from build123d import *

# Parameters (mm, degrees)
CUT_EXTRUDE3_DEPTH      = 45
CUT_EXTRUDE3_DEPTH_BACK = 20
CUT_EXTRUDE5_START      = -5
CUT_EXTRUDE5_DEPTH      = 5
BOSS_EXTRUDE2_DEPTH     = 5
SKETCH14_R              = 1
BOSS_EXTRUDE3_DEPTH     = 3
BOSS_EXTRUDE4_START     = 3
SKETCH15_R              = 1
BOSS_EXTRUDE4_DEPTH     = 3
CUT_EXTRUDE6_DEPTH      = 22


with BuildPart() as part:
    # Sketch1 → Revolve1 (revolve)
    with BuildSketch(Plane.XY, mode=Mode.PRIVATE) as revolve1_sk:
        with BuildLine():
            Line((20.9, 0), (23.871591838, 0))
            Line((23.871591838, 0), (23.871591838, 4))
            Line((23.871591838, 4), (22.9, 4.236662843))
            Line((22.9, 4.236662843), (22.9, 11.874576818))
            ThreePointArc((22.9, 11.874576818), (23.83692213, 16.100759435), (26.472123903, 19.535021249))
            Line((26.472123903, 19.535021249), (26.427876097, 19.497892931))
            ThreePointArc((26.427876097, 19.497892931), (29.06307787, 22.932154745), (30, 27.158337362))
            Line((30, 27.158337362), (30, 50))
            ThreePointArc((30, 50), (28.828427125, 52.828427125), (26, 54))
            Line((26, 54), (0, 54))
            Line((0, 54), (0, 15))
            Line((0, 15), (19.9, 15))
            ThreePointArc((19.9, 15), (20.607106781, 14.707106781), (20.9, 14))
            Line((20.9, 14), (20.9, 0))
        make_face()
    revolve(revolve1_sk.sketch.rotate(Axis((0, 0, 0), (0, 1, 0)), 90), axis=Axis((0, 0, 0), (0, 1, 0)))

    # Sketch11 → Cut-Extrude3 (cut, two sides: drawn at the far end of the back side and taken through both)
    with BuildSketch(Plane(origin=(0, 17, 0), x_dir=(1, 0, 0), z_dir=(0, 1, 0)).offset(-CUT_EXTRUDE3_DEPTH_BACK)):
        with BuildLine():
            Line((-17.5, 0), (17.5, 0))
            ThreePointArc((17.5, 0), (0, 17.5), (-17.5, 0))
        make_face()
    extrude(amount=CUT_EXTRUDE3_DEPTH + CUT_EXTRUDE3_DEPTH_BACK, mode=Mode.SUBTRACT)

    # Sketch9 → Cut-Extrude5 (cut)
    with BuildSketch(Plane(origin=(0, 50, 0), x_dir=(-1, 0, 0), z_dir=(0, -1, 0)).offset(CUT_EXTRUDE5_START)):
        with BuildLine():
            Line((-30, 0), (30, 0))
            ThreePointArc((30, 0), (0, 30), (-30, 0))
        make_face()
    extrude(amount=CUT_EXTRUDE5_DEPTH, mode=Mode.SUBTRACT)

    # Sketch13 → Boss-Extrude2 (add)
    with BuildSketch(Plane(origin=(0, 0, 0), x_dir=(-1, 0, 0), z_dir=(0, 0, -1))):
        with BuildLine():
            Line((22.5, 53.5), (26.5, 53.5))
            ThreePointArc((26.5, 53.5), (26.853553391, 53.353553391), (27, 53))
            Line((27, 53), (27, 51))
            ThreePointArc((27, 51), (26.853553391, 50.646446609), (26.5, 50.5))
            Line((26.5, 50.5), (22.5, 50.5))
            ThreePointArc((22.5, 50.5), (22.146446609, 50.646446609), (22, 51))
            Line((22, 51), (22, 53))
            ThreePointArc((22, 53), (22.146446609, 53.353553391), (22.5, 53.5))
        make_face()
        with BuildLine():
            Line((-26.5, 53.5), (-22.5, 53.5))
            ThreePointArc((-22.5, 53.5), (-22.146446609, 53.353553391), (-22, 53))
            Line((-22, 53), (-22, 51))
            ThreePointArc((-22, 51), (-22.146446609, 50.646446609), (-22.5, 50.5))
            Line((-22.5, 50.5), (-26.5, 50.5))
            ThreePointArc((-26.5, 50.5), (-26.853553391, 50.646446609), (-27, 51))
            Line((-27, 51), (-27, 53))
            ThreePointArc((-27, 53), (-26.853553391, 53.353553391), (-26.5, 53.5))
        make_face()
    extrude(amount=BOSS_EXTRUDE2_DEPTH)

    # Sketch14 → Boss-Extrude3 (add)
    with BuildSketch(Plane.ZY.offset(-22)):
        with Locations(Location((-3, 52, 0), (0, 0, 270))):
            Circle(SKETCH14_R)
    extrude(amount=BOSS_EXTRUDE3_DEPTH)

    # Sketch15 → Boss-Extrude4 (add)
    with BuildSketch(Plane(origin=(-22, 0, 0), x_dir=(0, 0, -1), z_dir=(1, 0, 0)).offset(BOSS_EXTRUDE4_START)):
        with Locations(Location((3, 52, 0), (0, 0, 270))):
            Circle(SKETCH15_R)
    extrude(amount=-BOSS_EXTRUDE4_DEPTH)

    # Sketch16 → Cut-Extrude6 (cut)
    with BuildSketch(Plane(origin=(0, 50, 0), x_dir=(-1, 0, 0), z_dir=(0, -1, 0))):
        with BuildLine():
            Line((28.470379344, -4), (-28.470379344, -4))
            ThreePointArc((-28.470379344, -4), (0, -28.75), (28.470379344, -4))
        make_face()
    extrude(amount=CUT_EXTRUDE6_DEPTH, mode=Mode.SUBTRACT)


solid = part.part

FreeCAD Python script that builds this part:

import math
import FreeCAD as App
import Part
import Sketcher

V = App.Vector
Q = App.Units.Quantity

doc = App.newDocument("Part")
params = doc.addObject("Spreadsheet::Sheet", "Params")
for row, (alias, value) in enumerate([
    ("sketch1_radius", "10 mm"),
    ("sketch1_radius2", "4 mm"),
    ("sketch1_radius3", "1 mm"),
    ("sketch1_width", "26 mm"),
    ("sketch1_height", "4 mm"),
    ("revolution_angle", "360 deg"),
    ("sketch2_radius", "17.5 mm"),
    ("sketch3_radius", "30 mm"),
    ("pocket2_length", "5 mm"),
    ("sketch4_radius", "0.5 mm"),
    ("sketch4_width", "4 mm"),
    ("sketch4_height", "2 mm"),
    ("pad1_length", "5 mm"),
    ("sketch5_diameter", "2 mm"),
    ("pad2_length", "3 mm"),
    ("sketch6_diameter", "2 mm"),
    ("pad3_length", "3 mm"),
    ("sketch7_radius", "28.75 mm"),
    ("pocket3_length", "22 mm"),
], start=1):
    params.set(f"A{row}", alias)
    params.set(f"B{row}", "=" + value)
    params.setAlias(f"B{row}", alias)

body = doc.addObject("PartDesign::Body", "Body")

sketch1 = doc.addObject("Sketcher::SketchObject", "Sketch")
body.addObject(sketch1)
sketch1.AttachmentSupport = (doc.XY_Plane, [""])
sketch1.MapMode = "FlatFace"
sketch1.addGeometry([
    Part.LineSegment(V(20.9, 0, 0), V(23.87, 0, 0)),
    Part.LineSegment(V(23.87, 0, 0), V(23.87, 4, 0)),
    Part.LineSegment(V(23.87, 4, 0), V(22.9, 4.24, 0)),
    Part.LineSegment(V(22.9, 4.24, 0), V(22.9, 11.87, 0)),
    Part.ArcOfCircle(Part.Circle(V(32.9, 11.87, 0), V(0, 0, 1), 10), math.radians(130), math.radians(180)),
    Part.LineSegment(V(26.47, 19.54, 0), V(26.43, 19.5, 0)),
    Part.ArcOfCircle(Part.Circle(V(20, 27.16, 0), V(0, 0, 1), 10), math.radians(-50), math.radians(0)),
    Part.LineSegment(V(30, 27.16, 0), V(30, 50, 0)),
    Part.ArcOfCircle(Part.Circle(V(26, 50, 0), V(0, 0, 1), 4), math.radians(0), math.radians(90)),
    Part.LineSegment(V(26, 54, 0), V(0, 54, 0)),
    Part.LineSegment(V(0, 54, 0), V(0, 15, 0)),
    Part.LineSegment(V(0, 15, 0), V(19.9, 15, 0)),
    Part.ArcOfCircle(Part.Circle(V(19.9, 14, 0), V(0, 0, 1), 1), math.radians(0), math.radians(90)),
    Part.LineSegment(V(20.9, 14, 0), V(20.9, 0, 0)),
], False)
sketch1.addConstraint([
    Sketcher.Constraint("Coincident", 0, 2, 1, 1),
    Sketcher.Constraint("Coincident", 1, 2, 2, 1),
    Sketcher.Constraint("Coincident", 2, 2, 3, 1),
    Sketcher.Constraint("Tangent", 3, 2, 4, 2),
    Sketcher.Constraint("Tangent", 4, 1, 5, 1),
    Sketcher.Constraint("Tangent", 5, 2, 6, 1),
    Sketcher.Constraint("Tangent", 6, 2, 7, 1),
    Sketcher.Constraint("Tangent", 7, 2, 8, 1),
    Sketcher.Constraint("Tangent", 8, 2, 9, 1),
    Sketcher.Constraint("Coincident", 9, 2, 10, 1),
    Sketcher.Constraint("Coincident", 10, 2, 11, 1),
    Sketcher.Constraint("Tangent", 11, 2, 12, 2),
    Sketcher.Constraint("Tangent", 12, 1, 13, 1),
    Sketcher.Constraint("Coincident", 13, 2, 0, 1),
    Sketcher.Constraint("Horizontal", 0),
    Sketcher.Constraint("Vertical", 1),
    Sketcher.Constraint("Vertical", 3),
    Sketcher.Constraint("Vertical", 7),
    Sketcher.Constraint("Horizontal", 9),
    Sketcher.Constraint("Vertical", 10),
    Sketcher.Constraint("Horizontal", 11),
    Sketcher.Constraint("Vertical", 13),
    Sketcher.Constraint("Equal", 4, 6),
    Sketcher.Constraint("PointOnObject", 0, 2, -1),
    Sketcher.Constraint("PointOnObject", 9, 2, -2),
    Sketcher.Constraint("Radius", 4, 10.0),
    Sketcher.Constraint("Radius", 8, 4.0),
    Sketcher.Constraint("Radius", 12, 1.0),
    Sketcher.Constraint("DistanceX", 9, 2, 9, 1, 26.0),
    Sketcher.Constraint("DistanceY", 1, 1, 1, 2, 4.0),
    Sketcher.Constraint("DistanceY", 10, 2, 10, 1, 39.0),
    Sketcher.Constraint("DistanceY", 13, 2, 13, 1, 14.0),
    Sketcher.Constraint("Angle", 5, Q("-140 deg")),
    Sketcher.Constraint("Distance", 2, 1.0),
    Sketcher.Constraint("DistanceX", 11, 1, 11, 2, 19.9),
    Sketcher.Constraint("DistanceX", 12, 3, 4, 3, 13.0),
    Sketcher.Constraint("DistanceX", 0, 1, 0, 2, 2.971592),
    Sketcher.Constraint("DistanceY", 3, 1, 3, 2, 7.637914),
])
sketch1.setExpression("Constraints[25]", "Params.sketch1_radius")
sketch1.setExpression("Constraints[26]", "Params.sketch1_radius2")
sketch1.setExpression("Constraints[27]", "Params.sketch1_radius3")
sketch1.setExpression("Constraints[28]", "Params.sketch1_width")
sketch1.setExpression("Constraints[29]", "Params.sketch1_height")
revolution = doc.addObject("PartDesign::Revolution", "Revolution")
body.addObject(revolution)
revolution.Profile = sketch1
revolution.ReferenceAxis = (sketch1, ["V_Axis"])
revolution.setExpression("Angle", "Params.revolution_angle")

sketch2 = doc.addObject("Sketcher::SketchObject", "Sketch001")
body.addObject(sketch2)
sketch2.AttachmentSupport = (doc.XZ_Plane, [""])
sketch2.MapMode = "FlatFace"
sketch2.AttachmentOffset = App.Placement(V(0, 0, -17), App.Rotation())
sketch2.addGeometry([
    Part.LineSegment(V(-18, 0, 0), V(18, 0, 0)),
    Part.ArcOfCircle(Part.Circle(V(0, 0, 0), V(0, 0, 1), 18), math.radians(180), math.radians(360)),
], False)
sketch2.addConstraint([
    Sketcher.Constraint("Coincident", 0, 1, 1, 1),
    Sketcher.Constraint("Coincident", 1, 2, 0, 2),
    Sketcher.Constraint("Horizontal", 0),
    Sketcher.Constraint("Coincident", 1, 3, -1, 1),
    Sketcher.Constraint("PointOnObject", 0, 1, -1),
    Sketcher.Constraint("Radius", 1, 17.5),
])
sketch2.setExpression("Constraints[5]", "Params.sketch2_radius")
pocket1 = doc.addObject("PartDesign::Pocket", "Pocket")
body.addObject(pocket1)
pocket1.Profile = sketch2
pocket1.Type = "ThroughAll"
pocket1.Midplane = True

sketch3 = doc.addObject("Sketcher::SketchObject", "Sketch002")
body.addObject(sketch3)
sketch3.AttachmentSupport = (doc.XZ_Plane, [""])
sketch3.MapMode = "FlatFace"
sketch3.AttachmentOffset = App.Placement(V(0, 0, -55), App.Rotation())
sketch3.addGeometry([
    Part.LineSegment(V(30, 0, 0), V(-30, 0, 0)),
    Part.ArcOfCircle(Part.Circle(V(0, 0, 0), V(0, 0, 1), 30), math.radians(180), math.radians(360)),
], False)
sketch3.addConstraint([
    Sketcher.Constraint("Coincident", 0, 1, 1, 2),
    Sketcher.Constraint("Coincident", 1, 1, 0, 2),
    Sketcher.Constraint("Horizontal", 0),
    Sketcher.Constraint("Coincident", 1, 3, -1, 1),
    Sketcher.Constraint("PointOnObject", 0, 1, -1),
    Sketcher.Constraint("Radius", 1, 30.0),
])
sketch3.setExpression("Constraints[5]", "Params.sketch3_radius")
pocket2 = doc.addObject("PartDesign::Pocket", "Pocket001")
body.addObject(pocket2)
pocket2.Profile = sketch3
pocket2.setExpression("Length", "Params.pocket2_length")
pocket2.Reversed = True

sketch4 = doc.addObject("Sketcher::SketchObject", "Sketch003")
body.addObject(sketch4)
sketch4.AttachmentSupport = (doc.XY_Plane, [""])
sketch4.MapMode = "FlatFace"
sketch4.addGeometry([
    Part.LineSegment(V(-26.5, 53.5, 0), V(-22.5, 53.5, 0)),
    Part.ArcOfCircle(Part.Circle(V(-22.5, 53, 0), V(0, 0, 1), 0.5), math.radians(0), math.radians(90)),
    Part.LineSegment(V(-22, 53, 0), V(-22, 51, 0)),
    Part.ArcOfCircle(Part.Circle(V(-22.5, 51, 0), V(0, 0, 1), 0.5), math.radians(-90), math.radians(0)),
    Part.LineSegment(V(-22.5, 50.5, 0), V(-26.5, 50.5, 0)),
    Part.ArcOfCircle(Part.Circle(V(-26.5, 51, 0), V(0, 0, 1), 0.5), math.radians(180), math.radians(270)),
    Part.LineSegment(V(-27, 51, 0), V(-27, 53, 0)),
    Part.ArcOfCircle(Part.Circle(V(-26.5, 53, 0), V(0, 0, 1), 0.5), math.radians(90), math.radians(180)),
    Part.LineSegment(V(22.5, 53.5, 0), V(26.5, 53.5, 0)),
    Part.ArcOfCircle(Part.Circle(V(26.5, 53, 0), V(0, 0, 1), 0.5), math.radians(0), math.radians(90)),
    Part.LineSegment(V(27, 53, 0), V(27, 51, 0)),
    Part.ArcOfCircle(Part.Circle(V(26.5, 51, 0), V(0, 0, 1), 0.5), math.radians(-90), math.radians(0)),
    Part.LineSegment(V(26.5, 50.5, 0), V(22.5, 50.5, 0)),
    Part.ArcOfCircle(Part.Circle(V(22.5, 51, 0), V(0, 0, 1), 0.5), math.radians(180), math.radians(270)),
    Part.LineSegment(V(22, 51, 0), V(22, 53, 0)),
    Part.ArcOfCircle(Part.Circle(V(22.5, 53, 0), V(0, 0, 1), 0.5), math.radians(90), math.radians(180)),
], False)
sketch4.addConstraint([
    Sketcher.Constraint("Tangent", 0, 2, 1, 2),
    Sketcher.Constraint("Tangent", 1, 1, 2, 1),
    Sketcher.Constraint("Tangent", 2, 2, 3, 2),
    Sketcher.Constraint("Tangent", 3, 1, 4, 1),
    Sketcher.Constraint("Tangent", 4, 2, 5, 2),
    Sketcher.Constraint("Tangent", 5, 1, 6, 1),
    Sketcher.Constraint("Tangent", 6, 2, 7, 2),
    Sketcher.Constraint("Tangent", 7, 1, 0, 1),
    Sketcher.Constraint("Tangent", 8, 2, 9, 2),
    Sketcher.Constraint("Tangent", 9, 1, 10, 1),
    Sketcher.Constraint("Tangent", 10, 2, 11, 2),
    Sketcher.Constraint("Tangent", 11, 1, 12, 1),
    Sketcher.Constraint("Tangent", 12, 2, 13, 2),
    Sketcher.Constraint("Tangent", 13, 1, 14, 1),
    Sketcher.Constraint("Tangent", 14, 2, 15, 2),
    Sketcher.Constraint("Tangent", 15, 1, 8, 1),
    Sketcher.Constraint("Horizontal", 0),
    Sketcher.Constraint("Vertical", 2),
    Sketcher.Constraint("Horizontal", 4),
    Sketcher.Constraint("Vertical", 6),
    Sketcher.Constraint("Horizontal", 8),
    Sketcher.Constraint("Vertical", 10),
    Sketcher.Constraint("Horizontal", 12),
    Sketcher.Constraint("Vertical", 14),
    Sketcher.Constraint("Equal", 1, 3),
    Sketcher.Constraint("Equal", 3, 5),
    Sketcher.Constraint("Equal", 5, 7),
    Sketcher.Constraint("Equal", 7, 9),
    Sketcher.Constraint("Equal", 9, 11),
    Sketcher.Constraint("Equal", 11, 13),
    Sketcher.Constraint("Equal", 13, 15),
    Sketcher.Constraint("Symmetric", 7, 3, 9, 3, -2),
    Sketcher.Constraint("Symmetric", 3, 3, 13, 3, -2),
    Sketcher.Constraint("Radius", 1, 0.5),
    Sketcher.Constraint("DistanceX", 0, 1, 0, 2, 4.0),
    Sketcher.Constraint("DistanceY", 2, 2, 2, 1, 2.0),
    Sketcher.Constraint("DistanceY", -1, 1, 1, 3, 53.0),
    Sketcher.Constraint("DistanceX", 1, 1, -1, 1, 22.0),
])
sketch4.setExpression("Constraints[33]", "Params.sketch4_radius")
sketch4.setExpression("Constraints[34]", "Params.sketch4_width")
sketch4.setExpression("Constraints[35]", "Params.sketch4_height")
pad1 = doc.addObject("PartDesign::Pad", "Pad")
body.addObject(pad1)
pad1.Profile = sketch4
pad1.setExpression("Length", "Params.pad1_length")
pad1.Reversed = True

sketch5 = doc.addObject("Sketcher::SketchObject", "Sketch004")
body.addObject(sketch5)
sketch5.AttachmentSupport = (doc.YZ_Plane, [""])
sketch5.MapMode = "FlatFace"
sketch5.AttachmentOffset = App.Placement(V(0, 0, 22), App.Rotation())
sketch5.addGeometry(Part.Circle(V(52, -3, 0), V(0, 0, 1), 1), False)
sketch5.addConstraint([
    Sketcher.Constraint("Diameter", 0, 2.0),
    Sketcher.Constraint("DistanceX", -1, 1, 0, 3, 52.0),
    Sketcher.Constraint("DistanceY", 0, 3, -1, 1, 3.0),
])
sketch5.setExpression("Constraints[0]", "Params.sketch5_diameter")
pad2 = doc.addObject("PartDesign::Pad", "Pad001")
body.addObject(pad2)
pad2.Profile = sketch5
pad2.setExpression("Length", "Params.pad2_length")
pad2.Reversed = True

sketch6 = doc.addObject("Sketcher::SketchObject", "Sketch005")
body.addObject(sketch6)
sketch6.AttachmentSupport = (doc.YZ_Plane, [""])
sketch6.MapMode = "FlatFace"
sketch6.AttachmentOffset = App.Placement(V(0, 0, -19), App.Rotation())
sketch6.addGeometry(Part.Circle(V(52, -3, 0), V(0, 0, 1), 1), False)
sketch6.addConstraint([
    Sketcher.Constraint("Diameter", 0, 2.0),
    Sketcher.Constraint("DistanceX", -1, 1, 0, 3, 52.0),
    Sketcher.Constraint("DistanceY", 0, 3, -1, 1, 3.0),
])
sketch6.setExpression("Constraints[0]", "Params.sketch6_diameter")
pad3 = doc.addObject("PartDesign::Pad", "Pad002")
body.addObject(pad3)
pad3.Profile = sketch6
pad3.setExpression("Length", "Params.pad3_length")
pad3.Reversed = True

sketch7 = doc.addObject("Sketcher::SketchObject", "Sketch006")
body.addObject(sketch7)
sketch7.AttachmentSupport = (doc.XZ_Plane, [""])
sketch7.MapMode = "FlatFace"
sketch7.AttachmentOffset = App.Placement(V(0, 0, -50), App.Rotation())
sketch7.addGeometry([
    Part.LineSegment(V(-28, 4, 0), V(28, 4, 0)),
    Part.ArcOfCircle(Part.Circle(V(0, 0, 0), V(0, 0, 1), 29), math.radians(8), math.radians(172)),
], False)
sketch7.addConstraint([
    Sketcher.Constraint("Coincident", 0, 1, 1, 2),
    Sketcher.Constraint("Coincident", 1, 1, 0, 2),
    Sketcher.Constraint("Horizontal", 0),
    Sketcher.Constraint("Coincident", 1, 3, -1, 1),
    Sketcher.Constraint("Radius", 1, 28.75),
    Sketcher.Constraint("DistanceY", -1, 1, 0, 1, 4.0),
])
sketch7.setExpression("Constraints[4]", "Params.sketch7_radius")
pocket3 = doc.addObject("PartDesign::Pocket", "Pocket002")
body.addObject(pocket3)
pocket3.Profile = sketch7
pocket3.setExpression("Length", "Params.pocket3_length")
pocket3.Reversed = True

doc.recompute()
